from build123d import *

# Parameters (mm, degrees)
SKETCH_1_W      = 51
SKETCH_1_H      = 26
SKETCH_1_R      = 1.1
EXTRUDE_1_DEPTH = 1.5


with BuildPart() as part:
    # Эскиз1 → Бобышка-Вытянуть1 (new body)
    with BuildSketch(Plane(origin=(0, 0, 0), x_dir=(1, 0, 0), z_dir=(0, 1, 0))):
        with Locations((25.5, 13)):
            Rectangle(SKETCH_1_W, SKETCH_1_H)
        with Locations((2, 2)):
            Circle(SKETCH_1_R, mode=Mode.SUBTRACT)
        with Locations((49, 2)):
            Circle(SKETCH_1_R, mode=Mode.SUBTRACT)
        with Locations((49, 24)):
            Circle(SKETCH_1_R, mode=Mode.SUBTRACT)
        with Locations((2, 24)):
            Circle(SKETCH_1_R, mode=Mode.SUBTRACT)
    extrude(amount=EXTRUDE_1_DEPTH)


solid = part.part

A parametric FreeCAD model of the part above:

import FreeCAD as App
import Part
import Sketcher
from FreeCAD import Vector

doc = App.newDocument("Part")
body = doc.addObject("PartDesign::Body", "Body")

# Sketch on XZ plane
sketch1 = doc.addObject("Sketcher::SketchObject", "Sketch")
body.addObject(sketch1)
sketch1.AttachmentSupport = (doc.XZ_Plane, [""])
sketch1.MapMode = "FlatFace"
sketch1.addGeometry([
    Part.LineSegment(Vector(0, -26, 0), Vector(0, 0, 0)),  # 0
    Part.LineSegment(Vector(0, 0, 0), Vector(51, 0, 0)),  # 1
    Part.LineSegment(Vector(51, 0, 0), Vector(51, -26, 0)),  # 2
    Part.LineSegment(Vector(51, -26, 0), Vector(0, -26, 0)),  # 3
    Part.Circle(Vector(2, -2, 0), Vector(0, 0, 1), 1.1),  # 4
    Part.Circle(Vector(49, -2, 0), Vector(0, 0, 1), 1.1),  # 5
    Part.Circle(Vector(2, -24, 0), Vector(0, 0, 1), 1.1),  # 6
    Part.Circle(Vector(49, -24, 0), Vector(0, 0, 1), 1.1),  # 7
], False)
sketch1.addConstraint([
    Sketcher.Constraint("Coincident", 0, 2, 1, 1),
    Sketcher.Constraint("Coincident", 1, 2, 2, 1),
    Sketcher.Constraint("Coincident", 2, 2, 3, 1),
    Sketcher.Constraint("Coincident", 3, 2, 0, 1),
    Sketcher.Constraint("Vertical", 0),
    Sketcher.Constraint("Horizontal", 1),
    Sketcher.Constraint("Vertical", 2),
    Sketcher.Constraint("Horizontal", 3),
    Sketcher.Constraint("Coincident", 0, 2, -1, 1),
    Sketcher.Constraint("Equal", 4, 5),
    Sketcher.Constraint("Equal", 5, 6),
    Sketcher.Constraint("Equal", 6, 7),
    Sketcher.Constraint("Horizontal", 4, 3, 5, 3),
    Sketcher.Constraint("Horizontal", 6, 3, 7, 3),
    Sketcher.Constraint("Vertical", 4, 3, 6, 3),
    Sketcher.Constraint("Vertical", 5, 3, 7, 3),
    Sketcher.Constraint("Diameter", 4, 2.2),
    Sketcher.Constraint("DistanceX", 1, 1, 1, 2, 51.0),
    Sketcher.Constraint("DistanceY", 0, 1, 0, 2, 26.0),
    Sketcher.Constraint("DistanceX", -1, 1, 4, 3, 2.0),
    Sketcher.Constraint("DistanceY", 4, 3, -1, 1, 2.0),
    Sketcher.Constraint("DistanceX", -1, 1, 5, 3, 49.0),
    Sketcher.Constraint("DistanceY", 6, 3, -1, 1, 24.0),
])
pad1 = doc.addObject("PartDesign::Pad", "Pad")
body.addObject(pad1)
pad1.Profile = sketch1
pad1.Length = 1.5
pad1.Reversed = True

doc.recompute()
